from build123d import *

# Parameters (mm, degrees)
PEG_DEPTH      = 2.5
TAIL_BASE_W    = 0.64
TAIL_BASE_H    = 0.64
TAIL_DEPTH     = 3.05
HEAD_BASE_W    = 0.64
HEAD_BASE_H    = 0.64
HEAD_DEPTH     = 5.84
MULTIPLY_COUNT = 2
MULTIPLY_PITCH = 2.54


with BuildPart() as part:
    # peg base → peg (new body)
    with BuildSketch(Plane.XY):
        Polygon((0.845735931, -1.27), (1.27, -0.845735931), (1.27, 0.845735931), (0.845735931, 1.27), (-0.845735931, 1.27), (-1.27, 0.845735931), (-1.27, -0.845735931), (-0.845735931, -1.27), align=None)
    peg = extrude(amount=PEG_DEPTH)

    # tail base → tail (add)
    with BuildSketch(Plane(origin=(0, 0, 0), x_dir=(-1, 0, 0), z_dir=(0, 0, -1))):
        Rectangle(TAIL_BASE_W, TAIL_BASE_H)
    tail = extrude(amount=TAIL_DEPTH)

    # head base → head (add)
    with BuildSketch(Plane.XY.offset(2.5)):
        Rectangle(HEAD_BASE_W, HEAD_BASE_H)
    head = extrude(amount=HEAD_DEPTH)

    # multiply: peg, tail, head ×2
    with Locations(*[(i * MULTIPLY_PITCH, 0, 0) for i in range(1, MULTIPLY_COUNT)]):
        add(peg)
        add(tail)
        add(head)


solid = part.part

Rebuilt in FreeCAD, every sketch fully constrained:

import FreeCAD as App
import Part
import Sketcher
from FreeCAD import Vector

doc = App.newDocument("Part")
body = doc.addObject("PartDesign::Body", "Body")

sketch1 = body.newObject("Sketcher::SketchObject", "Sketch")
sketch1.AttachmentSupport = (doc.getObject("XY_Plane"), [""])
sketch1.MapMode = "FlatFace"
sketch1.addGeometry([
    Part.LineSegment(Vector(0.8, -1.3, 0), Vector(1.3, -0.8, 0)),
    Part.LineSegment(Vector(1.3, -0.8, 0), Vector(1.3, 0.8, 0)),
    Part.LineSegment(Vector(1.3, 0.8, 0), Vector(0.8, 1.3, 0)),
    Part.LineSegment(Vector(0.8, 1.3, 0), Vector(-0.8, 1.3, 0)),
    Part.LineSegment(Vector(-0.8, 1.3, 0), Vector(-1.3, 0.8, 0)),
    Part.LineSegment(Vector(-1.3, 0.8, 0), Vector(-1.3, -0.8, 0)),
    Part.LineSegment(Vector(-1.3, -0.8, 0), Vector(-0.8, -1.3, 0)),
    Part.LineSegment(Vector(-0.8, -1.3, 0), Vector(0.8, -1.3, 0)),
], False)
sketch1.addConstraint([
    Sketcher.Constraint("Coincident", 0, 2, 1, 1),
    Sketcher.Constraint("Coincident", 1, 2, 2, 1),
    Sketcher.Constraint("Coincident", 2, 2, 3, 1),
    Sketcher.Constraint("Coincident", 3, 2, 4, 1),
    Sketcher.Constraint("Coincident", 4, 2, 5, 1),
    Sketcher.Constraint("Coincident", 5, 2, 6, 1),
    Sketcher.Constraint("Coincident", 6, 2, 7, 1),
    Sketcher.Constraint("Coincident", 7, 2, 0, 1),
    Sketcher.Constraint("Vertical", 1),
    Sketcher.Constraint("Horizontal", 3),
    Sketcher.Constraint("Vertical", 5),
    Sketcher.Constraint("Horizontal", 7),
    Sketcher.Constraint("Symmetric", 0, 2, 4, 2, -1, 1),
    Sketcher.Constraint("Symmetric", 2, 2, 6, 2, -1, 1),
    Sketcher.Constraint("Perpendicular", 0, 2),
    Sketcher.Constraint("Perpendicular", 2, 4),
    Sketcher.Constraint("Perpendicular", 4, 6),
    Sketcher.Constraint("Horizontal", 1, 2, 4, 2),
    Sketcher.Constraint("Vertical", 3, 2, 6, 2),
    Sketcher.Constraint("Equal", 7, 1),
    Sketcher.Constraint("Distance", 0, 0.6),
    Sketcher.Constraint("DistanceX", -1, 1, 0, 2, 1.27),
])
pad1 = body.newObject("PartDesign::Pad", "Pad")
pad1.Profile = sketch1
pad1.Length = 2.5

sketch2 = body.newObject("Sketcher::SketchObject", "Sketch001")
sketch2.AttachmentSupport = (doc.getObject("XY_Plane"), [""])
sketch2.MapMode = "FlatFace"
sketch2.addGeometry([
    Part.LineSegment(Vector(0.3, 0.3, 0), Vector(0.3, -0.3, 0)),
    Part.LineSegment(Vector(0.3, -0.3, 0), Vector(-0.3, -0.3, 0)),
    Part.LineSegment(Vector(-0.3, -0.3, 0), Vector(-0.3, 0.3, 0)),
    Part.LineSegment(Vector(-0.3, 0.3, 0), Vector(0.3, 0.3, 0)),
], False)
sketch2.addConstraint([
    Sketcher.Constraint("Coincident", 0, 2, 1, 1),
    Sketcher.Constraint("Coincident", 1, 2, 2, 1),
    Sketcher.Constraint("Coincident", 2, 2, 3, 1),
    Sketcher.Constraint("Coincident", 3, 2, 0, 1),
    Sketcher.Constraint("Vertical", 0),
    Sketcher.Constraint("Horizontal", 1),
    Sketcher.Constraint("Vertical", 2),
    Sketcher.Constraint("Horizontal", 3),
    Sketcher.Constraint("Symmetric", 0, 2, 2, 2, -1, 1),
    Sketcher.Constraint("Equal", 3, 0),
    Sketcher.Constraint("DistanceX", 1, 2, 1, 1, 0.64),
])
pad2 = body.newObject("PartDesign::Pad", "Pad001")
pad2.Profile = sketch2
pad2.Length = 3.05
pad2.Reversed = True

sketch3 = body.newObject("Sketcher::SketchObject", "Sketch002")
sketch3.AttachmentSupport = (doc.getObject("XY_Plane"), [""])
sketch3.MapMode = "FlatFace"
sketch3.AttachmentOffset = App.Placement(Vector(0, 0, 2.5), App.Rotation())
sketch3.addGeometry([
    Part.LineSegment(Vector(-0.3, 0.3, 0), Vector(-0.3, -0.3, 0)),
    Part.LineSegment(Vector(-0.3, -0.3, 0), Vector(0.3, -0.3, 0)),
    Part.LineSegment(Vector(0.3, -0.3, 0), Vector(0.3, 0.3, 0)),
    Part.LineSegment(Vector(0.3, 0.3, 0), Vector(-0.3, 0.3, 0)),
], False)
sketch3.addConstraint([
    Sketcher.Constraint("Coincident", 0, 2, 1, 1),
    Sketcher.Constraint("Coincident", 1, 2, 2, 1),
    Sketcher.Constraint("Coincident", 2, 2, 3, 1),
    Sketcher.Constraint("Coincident", 3, 2, 0, 1),
    Sketcher.Constraint("Vertical", 0),
    Sketcher.Constraint("Horizontal", 1),
    Sketcher.Constraint("Vertical", 2),
    Sketcher.Constraint("Horizontal", 3),
    Sketcher.Constraint("Symmetric", 0, 2, 2, 2, -1, 1),
    Sketcher.Constraint("Equal", 3, 0),
    Sketcher.Constraint("DistanceX", 1, 1, 1, 2, 0.64),
])
pad3 = body.newObject("PartDesign::Pad", "Pad002")
pad3.Profile = sketch3
pad3.Length = 5.84
doc.recompute()

linearpattern = body.newObject("PartDesign::LinearPattern", "LinearPattern")
linearpattern.Originals = [pad1, pad2, pad3]
linearpattern.Direction = (doc.getObject("X_Axis"), [""])
linearpattern.Mode = "offset"
linearpattern.Offset = 2.54
linearpattern.Occurrences = 2
body.Tip = linearpattern

doc.recompute()
